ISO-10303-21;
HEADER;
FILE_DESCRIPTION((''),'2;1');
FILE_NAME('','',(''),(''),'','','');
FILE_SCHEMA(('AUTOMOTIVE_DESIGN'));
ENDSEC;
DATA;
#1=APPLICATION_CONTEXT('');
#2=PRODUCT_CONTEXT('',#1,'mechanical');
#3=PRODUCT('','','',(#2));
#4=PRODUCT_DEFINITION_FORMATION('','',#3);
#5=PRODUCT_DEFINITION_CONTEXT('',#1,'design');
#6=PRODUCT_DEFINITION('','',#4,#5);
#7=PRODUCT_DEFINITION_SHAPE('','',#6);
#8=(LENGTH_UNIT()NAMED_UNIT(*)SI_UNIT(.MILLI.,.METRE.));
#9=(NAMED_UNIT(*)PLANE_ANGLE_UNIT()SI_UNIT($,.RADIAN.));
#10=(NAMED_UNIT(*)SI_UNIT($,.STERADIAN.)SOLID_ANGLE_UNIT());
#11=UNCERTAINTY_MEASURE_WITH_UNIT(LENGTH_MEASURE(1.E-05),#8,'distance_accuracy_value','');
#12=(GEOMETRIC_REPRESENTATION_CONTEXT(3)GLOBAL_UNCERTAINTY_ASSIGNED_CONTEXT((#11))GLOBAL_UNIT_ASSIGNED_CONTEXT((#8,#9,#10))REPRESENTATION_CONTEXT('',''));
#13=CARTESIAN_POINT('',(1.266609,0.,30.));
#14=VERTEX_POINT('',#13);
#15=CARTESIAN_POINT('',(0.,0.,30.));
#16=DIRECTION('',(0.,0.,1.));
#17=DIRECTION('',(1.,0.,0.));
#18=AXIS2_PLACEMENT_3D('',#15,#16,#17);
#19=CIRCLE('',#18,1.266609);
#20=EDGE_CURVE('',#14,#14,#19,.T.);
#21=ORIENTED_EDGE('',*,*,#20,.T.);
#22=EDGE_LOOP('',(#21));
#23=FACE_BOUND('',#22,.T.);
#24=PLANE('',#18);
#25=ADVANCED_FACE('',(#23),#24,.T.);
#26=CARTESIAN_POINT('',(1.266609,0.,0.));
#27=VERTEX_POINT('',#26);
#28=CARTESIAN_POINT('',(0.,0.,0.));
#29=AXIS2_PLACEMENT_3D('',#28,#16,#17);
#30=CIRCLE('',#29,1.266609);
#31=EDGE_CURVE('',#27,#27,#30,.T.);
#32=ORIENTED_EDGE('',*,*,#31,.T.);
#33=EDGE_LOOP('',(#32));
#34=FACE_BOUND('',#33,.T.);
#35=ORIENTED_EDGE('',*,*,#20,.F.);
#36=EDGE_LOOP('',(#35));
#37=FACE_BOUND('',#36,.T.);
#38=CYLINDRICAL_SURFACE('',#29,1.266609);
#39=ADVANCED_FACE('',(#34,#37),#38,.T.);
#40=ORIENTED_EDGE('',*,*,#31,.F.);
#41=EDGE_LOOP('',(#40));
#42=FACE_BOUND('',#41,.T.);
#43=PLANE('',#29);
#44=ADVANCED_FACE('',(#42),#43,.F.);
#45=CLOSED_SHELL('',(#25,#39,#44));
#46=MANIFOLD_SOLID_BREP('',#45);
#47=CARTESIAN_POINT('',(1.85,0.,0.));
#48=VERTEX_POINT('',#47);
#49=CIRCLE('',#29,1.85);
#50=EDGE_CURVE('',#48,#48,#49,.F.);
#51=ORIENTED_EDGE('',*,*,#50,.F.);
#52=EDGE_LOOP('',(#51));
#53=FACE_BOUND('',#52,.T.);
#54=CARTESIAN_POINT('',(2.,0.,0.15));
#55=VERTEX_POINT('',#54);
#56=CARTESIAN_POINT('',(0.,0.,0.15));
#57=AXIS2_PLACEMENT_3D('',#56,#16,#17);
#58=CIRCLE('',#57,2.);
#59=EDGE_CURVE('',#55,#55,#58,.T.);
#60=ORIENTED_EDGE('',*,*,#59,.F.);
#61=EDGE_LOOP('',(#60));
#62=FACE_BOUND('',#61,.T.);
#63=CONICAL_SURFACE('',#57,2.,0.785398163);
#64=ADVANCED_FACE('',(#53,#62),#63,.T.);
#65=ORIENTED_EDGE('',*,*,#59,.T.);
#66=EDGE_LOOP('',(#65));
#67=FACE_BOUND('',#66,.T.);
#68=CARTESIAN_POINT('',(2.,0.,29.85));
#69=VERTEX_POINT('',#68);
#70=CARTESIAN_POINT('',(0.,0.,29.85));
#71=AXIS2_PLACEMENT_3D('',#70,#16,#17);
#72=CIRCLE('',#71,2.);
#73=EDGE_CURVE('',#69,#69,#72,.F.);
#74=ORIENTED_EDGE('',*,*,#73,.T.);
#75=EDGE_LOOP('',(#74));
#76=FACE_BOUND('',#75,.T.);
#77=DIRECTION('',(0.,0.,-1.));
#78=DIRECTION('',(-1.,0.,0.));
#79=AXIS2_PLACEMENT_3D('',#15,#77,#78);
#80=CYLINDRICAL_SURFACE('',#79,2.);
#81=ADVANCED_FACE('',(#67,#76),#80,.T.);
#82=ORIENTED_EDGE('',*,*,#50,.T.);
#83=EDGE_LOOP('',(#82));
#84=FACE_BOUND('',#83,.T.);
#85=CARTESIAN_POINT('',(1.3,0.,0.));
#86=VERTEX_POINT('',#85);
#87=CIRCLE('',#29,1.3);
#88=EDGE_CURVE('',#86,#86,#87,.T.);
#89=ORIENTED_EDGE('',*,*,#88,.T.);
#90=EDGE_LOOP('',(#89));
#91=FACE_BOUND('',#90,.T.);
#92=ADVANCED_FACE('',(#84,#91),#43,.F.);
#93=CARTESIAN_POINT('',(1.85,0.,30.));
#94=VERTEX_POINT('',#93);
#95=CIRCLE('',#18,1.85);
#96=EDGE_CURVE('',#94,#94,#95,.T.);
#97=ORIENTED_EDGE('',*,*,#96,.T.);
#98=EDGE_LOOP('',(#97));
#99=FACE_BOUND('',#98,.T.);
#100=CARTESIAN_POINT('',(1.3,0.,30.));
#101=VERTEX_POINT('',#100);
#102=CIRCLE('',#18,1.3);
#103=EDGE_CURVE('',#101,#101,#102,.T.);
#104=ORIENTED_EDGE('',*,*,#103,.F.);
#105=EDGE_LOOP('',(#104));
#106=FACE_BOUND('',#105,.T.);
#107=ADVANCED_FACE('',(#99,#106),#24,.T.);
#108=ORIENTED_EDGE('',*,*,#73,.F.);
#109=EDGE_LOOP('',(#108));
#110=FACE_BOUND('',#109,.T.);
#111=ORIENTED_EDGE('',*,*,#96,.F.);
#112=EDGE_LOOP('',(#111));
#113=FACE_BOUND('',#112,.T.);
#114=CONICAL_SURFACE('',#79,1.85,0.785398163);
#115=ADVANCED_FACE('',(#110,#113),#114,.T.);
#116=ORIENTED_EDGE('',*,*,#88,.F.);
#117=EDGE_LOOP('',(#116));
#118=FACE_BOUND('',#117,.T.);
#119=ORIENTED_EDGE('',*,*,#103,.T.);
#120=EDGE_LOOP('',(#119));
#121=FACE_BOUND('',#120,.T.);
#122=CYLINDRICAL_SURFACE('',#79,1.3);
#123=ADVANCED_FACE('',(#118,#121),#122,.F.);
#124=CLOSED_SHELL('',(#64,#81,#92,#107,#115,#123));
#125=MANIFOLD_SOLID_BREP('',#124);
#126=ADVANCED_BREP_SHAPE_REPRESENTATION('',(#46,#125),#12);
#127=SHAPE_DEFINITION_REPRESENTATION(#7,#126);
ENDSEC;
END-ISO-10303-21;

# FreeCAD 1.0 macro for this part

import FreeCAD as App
import Part
import Sketcher
from FreeCAD import Vector


def edges_at(feature, points):
    """Names of the edges that pass closest to the given points."""
    edges = feature.Shape.Edges
    near = lambda p: min(range(len(edges)), key=lambda i: edges[i].distToShape(Part.Vertex(*p))[0])
    return sorted({f"Edge{near(p) + 1}" for p in points})


def faces_at(feature, points):
    """Names of the faces that lie closest to the given points."""
    faces = feature.Shape.Faces
    near = lambda p: min(range(len(faces)), key=lambda i: faces[i].distToShape(Part.Vertex(*p))[0])
    return sorted({f"Face{near(p) + 1}" for p in points})

doc = App.newDocument("Part")
params = doc.addObject("Spreadsheet::Sheet", "Params")
for row, (alias, value) in enumerate([
    ("sketch1_diameter", "4 mm"),
    ("pad1_length", "30 mm"),
    ("thickness_wall", "0.7 mm"),
    ("chamfer_size", "0.15 mm"),
    ("chamfer2_size", "0.15 mm"),
    ("pad2_length", "30 mm"),
], start=1):
    params.set(f"A{row}", alias)
    params.set(f"B{row}", "=" + value)
    params.setAlias(f"B{row}", alias)

body = doc.addObject("PartDesign::Body", "Body")

# Sketch on XY plane
sketch1 = body.newObject("Sketcher::SketchObject", "Sketch")
sketch1.AttachmentSupport = (doc.getObject("XY_Plane"), [""])
sketch1.MapMode = "FlatFace"
sketch1.addGeometry(Part.Circle(Vector(0, 0, 0), Vector(0, 0, 1), 2), False)
sketch1.addConstraint([
    Sketcher.Constraint("Coincident", 0, 3, -1, 1),
    Sketcher.Constraint("Diameter", 0, 4.0),
])
sketch1.setExpression("Constraints[1]", "Params.sketch1_diameter")
pad1 = body.newObject("PartDesign::Pad", "Pad")
pad1.Profile = sketch1
pad1.setExpression("Length", "Params.pad1_length")
doc.recompute()

thickness = body.newObject("PartDesign::Thickness", "Thickness")
thickness.Base = (pad1, faces_at(pad1, [(0, 0, 30), (0, 0, 0)]))
thickness.setExpression("Value", "Params.thickness_wall")
thickness.Reversed = True
thickness.Join = "Intersection"
doc.recompute()

chamfer = body.newObject("PartDesign::Chamfer", "Chamfer")
chamfer.Base = (thickness, edges_at(thickness, [(-2, 0, 0)]))
chamfer.setExpression("Size", "Params.chamfer_size")
doc.recompute()

chamfer2 = body.newObject("PartDesign::Chamfer", "Chamfer001")
chamfer2.Base = (chamfer, edges_at(chamfer, [(-2, 0, 30)]))
chamfer2.setExpression("Size", "Params.chamfer2_size")
body2 = doc.addObject("PartDesign::Body", "Body001")

# Sketch on XY plane
sketch2 = body2.newObject("Sketcher::SketchObject", "Sketch001")
sketch2.AttachmentSupport = (doc.getObject("XY_Plane001"), [""])
sketch2.MapMode = "FlatFace"
sketch2.AttachmentOffset = App.Placement(Vector(0, 0, 30), App.Rotation())
sketch2.addGeometry(Part.Circle(Vector(0, 0, 0), Vector(0, 0, 1), 1.3), False)
sketch2.addConstraint([
    Sketcher.Constraint("Coincident", 0, 3, -1, 1),
    Sketcher.Constraint("Diameter", 0, 2.533218),
])
pad2 = body2.newObject("PartDesign::Pad", "Pad001")
pad2.Profile = sketch2
pad2.setExpression("Length", "Params.pad2_length")
pad2.Reversed = True

doc.recompute()
